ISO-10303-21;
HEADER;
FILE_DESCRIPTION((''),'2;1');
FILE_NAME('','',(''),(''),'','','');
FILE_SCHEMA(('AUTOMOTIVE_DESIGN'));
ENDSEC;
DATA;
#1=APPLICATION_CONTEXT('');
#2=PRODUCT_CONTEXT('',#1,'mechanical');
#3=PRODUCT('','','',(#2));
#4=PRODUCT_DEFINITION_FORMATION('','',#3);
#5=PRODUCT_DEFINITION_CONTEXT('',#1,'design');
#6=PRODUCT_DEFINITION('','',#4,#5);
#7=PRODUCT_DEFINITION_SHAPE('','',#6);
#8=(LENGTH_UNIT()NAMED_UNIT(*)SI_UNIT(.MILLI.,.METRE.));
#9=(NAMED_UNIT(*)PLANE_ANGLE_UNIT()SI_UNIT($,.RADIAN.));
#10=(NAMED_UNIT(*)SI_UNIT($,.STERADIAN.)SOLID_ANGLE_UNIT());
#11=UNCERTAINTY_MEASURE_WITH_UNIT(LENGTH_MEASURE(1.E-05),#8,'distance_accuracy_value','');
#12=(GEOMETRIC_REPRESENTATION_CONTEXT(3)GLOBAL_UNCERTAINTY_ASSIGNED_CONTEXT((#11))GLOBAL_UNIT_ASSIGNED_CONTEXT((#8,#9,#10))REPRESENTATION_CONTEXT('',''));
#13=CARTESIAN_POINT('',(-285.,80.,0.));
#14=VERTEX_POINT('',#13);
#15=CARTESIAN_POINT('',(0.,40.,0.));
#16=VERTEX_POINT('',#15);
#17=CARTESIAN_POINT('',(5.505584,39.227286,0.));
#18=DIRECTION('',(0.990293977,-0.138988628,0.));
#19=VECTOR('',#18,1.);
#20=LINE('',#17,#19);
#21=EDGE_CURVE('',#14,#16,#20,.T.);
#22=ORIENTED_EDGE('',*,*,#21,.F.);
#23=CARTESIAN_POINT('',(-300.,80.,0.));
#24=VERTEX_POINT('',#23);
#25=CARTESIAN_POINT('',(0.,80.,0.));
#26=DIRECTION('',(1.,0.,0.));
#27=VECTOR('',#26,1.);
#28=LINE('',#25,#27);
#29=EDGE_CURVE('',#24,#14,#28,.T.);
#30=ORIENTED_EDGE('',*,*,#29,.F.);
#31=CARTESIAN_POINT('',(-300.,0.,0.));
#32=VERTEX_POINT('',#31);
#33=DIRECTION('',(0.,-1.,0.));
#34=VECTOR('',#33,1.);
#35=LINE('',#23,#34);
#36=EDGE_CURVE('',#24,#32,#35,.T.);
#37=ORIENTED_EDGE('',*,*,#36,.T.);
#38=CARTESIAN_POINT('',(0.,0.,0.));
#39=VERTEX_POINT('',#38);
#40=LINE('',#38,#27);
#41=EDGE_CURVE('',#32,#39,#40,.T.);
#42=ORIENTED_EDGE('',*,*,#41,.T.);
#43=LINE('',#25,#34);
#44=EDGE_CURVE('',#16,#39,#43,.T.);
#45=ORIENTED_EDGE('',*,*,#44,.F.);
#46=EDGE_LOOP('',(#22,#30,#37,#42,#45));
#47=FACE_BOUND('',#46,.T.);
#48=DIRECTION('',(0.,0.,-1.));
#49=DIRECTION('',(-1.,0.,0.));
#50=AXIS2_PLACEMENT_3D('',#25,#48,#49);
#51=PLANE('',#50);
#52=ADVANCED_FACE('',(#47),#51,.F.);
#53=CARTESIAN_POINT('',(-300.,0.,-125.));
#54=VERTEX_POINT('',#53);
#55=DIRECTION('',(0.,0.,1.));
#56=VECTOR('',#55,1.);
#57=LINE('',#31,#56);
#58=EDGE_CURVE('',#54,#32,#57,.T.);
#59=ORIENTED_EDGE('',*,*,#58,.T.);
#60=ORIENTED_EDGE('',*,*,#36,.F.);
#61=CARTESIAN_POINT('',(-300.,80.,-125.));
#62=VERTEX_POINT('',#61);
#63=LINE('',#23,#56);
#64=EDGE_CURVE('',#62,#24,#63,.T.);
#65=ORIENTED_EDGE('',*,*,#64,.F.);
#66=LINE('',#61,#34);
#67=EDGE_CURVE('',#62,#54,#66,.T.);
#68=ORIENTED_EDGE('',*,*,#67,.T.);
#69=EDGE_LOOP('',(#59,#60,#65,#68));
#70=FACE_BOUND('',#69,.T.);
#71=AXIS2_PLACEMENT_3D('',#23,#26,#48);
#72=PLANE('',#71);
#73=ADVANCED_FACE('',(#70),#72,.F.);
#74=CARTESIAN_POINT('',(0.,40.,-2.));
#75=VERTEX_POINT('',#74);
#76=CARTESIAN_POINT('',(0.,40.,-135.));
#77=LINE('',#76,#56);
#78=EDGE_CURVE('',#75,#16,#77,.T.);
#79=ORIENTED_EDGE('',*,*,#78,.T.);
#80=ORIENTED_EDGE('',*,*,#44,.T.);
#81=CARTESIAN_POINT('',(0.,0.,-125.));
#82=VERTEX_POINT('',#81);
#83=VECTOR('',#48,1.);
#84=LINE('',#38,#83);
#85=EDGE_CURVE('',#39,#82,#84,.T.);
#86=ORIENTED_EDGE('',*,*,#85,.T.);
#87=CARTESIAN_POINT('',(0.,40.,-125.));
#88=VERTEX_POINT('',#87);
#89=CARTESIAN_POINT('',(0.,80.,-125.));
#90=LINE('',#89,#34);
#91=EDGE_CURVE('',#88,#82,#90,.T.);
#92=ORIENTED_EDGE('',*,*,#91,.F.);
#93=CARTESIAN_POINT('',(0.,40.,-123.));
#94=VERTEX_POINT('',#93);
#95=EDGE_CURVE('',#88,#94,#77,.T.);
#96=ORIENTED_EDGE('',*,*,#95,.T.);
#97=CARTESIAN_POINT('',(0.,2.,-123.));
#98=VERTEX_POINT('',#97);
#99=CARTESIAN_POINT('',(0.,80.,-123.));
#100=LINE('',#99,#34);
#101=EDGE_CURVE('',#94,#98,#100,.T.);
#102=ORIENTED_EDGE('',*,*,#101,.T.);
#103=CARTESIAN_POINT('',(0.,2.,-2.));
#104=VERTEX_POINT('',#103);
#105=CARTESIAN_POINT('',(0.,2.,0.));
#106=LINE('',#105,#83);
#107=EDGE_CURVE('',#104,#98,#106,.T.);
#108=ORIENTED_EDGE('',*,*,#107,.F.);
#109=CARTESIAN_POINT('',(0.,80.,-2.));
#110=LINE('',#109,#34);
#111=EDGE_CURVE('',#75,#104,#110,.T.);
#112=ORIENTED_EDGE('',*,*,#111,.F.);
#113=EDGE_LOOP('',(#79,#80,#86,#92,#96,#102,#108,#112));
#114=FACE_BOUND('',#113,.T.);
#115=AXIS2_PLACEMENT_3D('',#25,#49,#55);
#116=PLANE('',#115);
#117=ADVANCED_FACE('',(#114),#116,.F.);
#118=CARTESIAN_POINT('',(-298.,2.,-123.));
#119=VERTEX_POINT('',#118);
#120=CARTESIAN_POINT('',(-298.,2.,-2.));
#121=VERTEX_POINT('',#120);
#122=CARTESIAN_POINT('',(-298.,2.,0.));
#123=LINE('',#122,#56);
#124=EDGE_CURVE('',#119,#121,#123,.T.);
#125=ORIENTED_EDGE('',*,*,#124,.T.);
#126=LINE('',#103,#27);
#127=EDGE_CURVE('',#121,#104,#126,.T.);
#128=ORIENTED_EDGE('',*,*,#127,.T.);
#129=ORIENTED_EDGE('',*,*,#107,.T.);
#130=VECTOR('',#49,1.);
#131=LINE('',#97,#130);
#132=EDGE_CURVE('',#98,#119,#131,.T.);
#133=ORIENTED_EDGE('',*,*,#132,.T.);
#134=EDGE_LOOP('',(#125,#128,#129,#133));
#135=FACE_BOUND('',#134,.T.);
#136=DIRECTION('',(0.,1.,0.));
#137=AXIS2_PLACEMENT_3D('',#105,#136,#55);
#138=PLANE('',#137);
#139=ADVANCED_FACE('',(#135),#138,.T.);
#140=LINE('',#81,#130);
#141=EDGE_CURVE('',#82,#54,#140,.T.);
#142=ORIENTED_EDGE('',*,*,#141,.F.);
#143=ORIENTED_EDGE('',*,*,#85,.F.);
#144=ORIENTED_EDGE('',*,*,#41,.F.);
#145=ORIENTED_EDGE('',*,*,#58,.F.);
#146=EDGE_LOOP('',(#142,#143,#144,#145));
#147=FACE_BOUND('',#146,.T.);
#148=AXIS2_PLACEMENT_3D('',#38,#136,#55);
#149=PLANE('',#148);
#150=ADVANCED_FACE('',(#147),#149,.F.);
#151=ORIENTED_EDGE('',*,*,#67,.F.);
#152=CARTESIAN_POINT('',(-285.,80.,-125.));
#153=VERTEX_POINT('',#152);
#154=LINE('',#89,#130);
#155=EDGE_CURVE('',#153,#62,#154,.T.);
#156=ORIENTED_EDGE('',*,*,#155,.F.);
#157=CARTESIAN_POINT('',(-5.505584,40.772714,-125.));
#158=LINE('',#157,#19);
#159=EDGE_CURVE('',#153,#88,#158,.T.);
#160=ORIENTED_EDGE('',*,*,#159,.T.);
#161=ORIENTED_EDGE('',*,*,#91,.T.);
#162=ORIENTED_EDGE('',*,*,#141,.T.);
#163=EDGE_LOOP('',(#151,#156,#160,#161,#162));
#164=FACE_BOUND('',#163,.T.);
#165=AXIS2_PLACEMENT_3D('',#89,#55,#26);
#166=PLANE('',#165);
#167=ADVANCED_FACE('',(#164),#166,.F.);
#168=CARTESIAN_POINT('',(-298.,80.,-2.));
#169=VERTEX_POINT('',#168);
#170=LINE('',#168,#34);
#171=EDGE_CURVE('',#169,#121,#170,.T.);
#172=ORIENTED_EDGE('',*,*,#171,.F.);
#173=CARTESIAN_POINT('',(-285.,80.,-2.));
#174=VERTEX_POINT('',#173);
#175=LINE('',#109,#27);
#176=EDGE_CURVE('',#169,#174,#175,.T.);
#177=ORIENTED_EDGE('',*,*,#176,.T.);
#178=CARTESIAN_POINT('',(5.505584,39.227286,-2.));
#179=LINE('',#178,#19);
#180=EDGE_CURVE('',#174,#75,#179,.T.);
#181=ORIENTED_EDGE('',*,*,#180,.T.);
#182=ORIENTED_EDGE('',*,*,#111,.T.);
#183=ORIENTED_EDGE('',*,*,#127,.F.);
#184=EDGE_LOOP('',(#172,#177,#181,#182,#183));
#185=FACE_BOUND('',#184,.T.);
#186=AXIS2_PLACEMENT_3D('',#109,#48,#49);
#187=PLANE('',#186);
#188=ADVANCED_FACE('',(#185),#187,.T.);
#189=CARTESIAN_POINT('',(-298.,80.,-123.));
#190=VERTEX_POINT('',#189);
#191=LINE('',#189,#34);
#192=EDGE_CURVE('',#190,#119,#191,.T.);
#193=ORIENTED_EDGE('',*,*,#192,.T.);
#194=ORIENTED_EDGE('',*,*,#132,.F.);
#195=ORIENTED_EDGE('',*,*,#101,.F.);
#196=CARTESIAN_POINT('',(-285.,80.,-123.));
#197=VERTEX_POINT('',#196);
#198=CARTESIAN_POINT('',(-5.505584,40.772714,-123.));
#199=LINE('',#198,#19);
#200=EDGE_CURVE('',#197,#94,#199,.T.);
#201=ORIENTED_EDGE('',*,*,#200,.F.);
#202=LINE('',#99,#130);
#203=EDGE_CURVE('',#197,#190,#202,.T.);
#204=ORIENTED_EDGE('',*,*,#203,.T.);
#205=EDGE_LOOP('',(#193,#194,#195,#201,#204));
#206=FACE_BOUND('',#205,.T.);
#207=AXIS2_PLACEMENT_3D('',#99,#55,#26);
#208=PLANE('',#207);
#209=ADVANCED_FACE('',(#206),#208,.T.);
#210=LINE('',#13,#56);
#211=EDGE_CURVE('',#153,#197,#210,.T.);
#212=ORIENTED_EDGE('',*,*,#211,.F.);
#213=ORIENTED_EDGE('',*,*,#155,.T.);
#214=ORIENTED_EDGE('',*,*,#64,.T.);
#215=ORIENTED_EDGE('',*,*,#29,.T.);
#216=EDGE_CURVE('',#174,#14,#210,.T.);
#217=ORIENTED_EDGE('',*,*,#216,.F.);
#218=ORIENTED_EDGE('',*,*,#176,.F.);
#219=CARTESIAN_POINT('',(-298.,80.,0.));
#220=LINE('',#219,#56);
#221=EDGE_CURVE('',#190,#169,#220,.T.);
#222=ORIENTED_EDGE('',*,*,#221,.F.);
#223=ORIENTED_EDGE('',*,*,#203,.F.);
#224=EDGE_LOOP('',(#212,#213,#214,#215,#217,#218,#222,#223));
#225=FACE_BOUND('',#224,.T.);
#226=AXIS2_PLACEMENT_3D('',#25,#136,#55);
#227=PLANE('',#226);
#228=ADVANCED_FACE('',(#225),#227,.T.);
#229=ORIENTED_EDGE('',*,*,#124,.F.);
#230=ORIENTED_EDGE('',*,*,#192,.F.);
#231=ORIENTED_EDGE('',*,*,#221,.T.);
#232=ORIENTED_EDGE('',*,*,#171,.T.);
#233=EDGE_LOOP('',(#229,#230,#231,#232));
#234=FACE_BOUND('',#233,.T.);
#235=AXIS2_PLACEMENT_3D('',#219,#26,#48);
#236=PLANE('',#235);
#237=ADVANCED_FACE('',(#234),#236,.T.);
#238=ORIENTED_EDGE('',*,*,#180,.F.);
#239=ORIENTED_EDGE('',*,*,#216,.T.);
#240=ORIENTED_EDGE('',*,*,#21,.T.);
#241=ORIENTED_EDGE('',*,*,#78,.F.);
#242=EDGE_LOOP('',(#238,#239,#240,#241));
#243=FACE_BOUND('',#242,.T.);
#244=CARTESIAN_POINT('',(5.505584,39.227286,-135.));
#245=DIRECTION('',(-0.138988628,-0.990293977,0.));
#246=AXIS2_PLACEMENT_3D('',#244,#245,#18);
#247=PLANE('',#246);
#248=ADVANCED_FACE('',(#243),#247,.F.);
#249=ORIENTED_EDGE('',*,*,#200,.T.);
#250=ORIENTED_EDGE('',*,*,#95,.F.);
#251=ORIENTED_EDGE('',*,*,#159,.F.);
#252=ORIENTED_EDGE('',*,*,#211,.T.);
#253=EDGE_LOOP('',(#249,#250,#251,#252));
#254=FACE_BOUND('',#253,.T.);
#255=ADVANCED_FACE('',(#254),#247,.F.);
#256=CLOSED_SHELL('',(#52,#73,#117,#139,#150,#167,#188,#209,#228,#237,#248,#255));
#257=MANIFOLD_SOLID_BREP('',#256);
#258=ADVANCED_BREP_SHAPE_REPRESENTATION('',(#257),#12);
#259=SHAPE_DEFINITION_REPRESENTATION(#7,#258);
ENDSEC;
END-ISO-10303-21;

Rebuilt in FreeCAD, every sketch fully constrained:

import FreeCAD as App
import Part
import Sketcher

V = App.Vector


def faces_at(feature, points):
    """Names of the faces that lie closest to the given points."""
    faces = feature.Shape.Faces
    near = lambda p: min(range(len(faces)), key=lambda i: faces[i].distToShape(Part.Vertex(*p))[0])
    return sorted({f"Face{near(p) + 1}" for p in points})

doc = App.newDocument("Part")
body = doc.addObject("PartDesign::Body", "Body")

sketch1 = doc.addObject("Sketcher::SketchObject", "Sketch")
body.addObject(sketch1)
sketch1.AttachmentSupport = (doc.XZ_Plane, [""])
sketch1.MapMode = "FlatFace"
sketch1.addGeometry(Part.LineSegment(V(-300, -125, 0), V(-300, 0, 0)), False)
sketch1.addGeometry(Part.LineSegment(V(-300, 0, 0), V(0, 0, 0)), False)
sketch1.addGeometry(Part.LineSegment(V(0, 0, 0), V(0, -125, 0)), False)
sketch1.addGeometry(Part.LineSegment(V(0, -125, 0), V(-300, -125, 0)), False)
sketch1.addConstraint(Sketcher.Constraint("Coincident", 0, 2, 1, 1))
sketch1.addConstraint(Sketcher.Constraint("Coincident", 1, 2, 2, 1))
sketch1.addConstraint(Sketcher.Constraint("Coincident", 2, 2, 3, 1))
sketch1.addConstraint(Sketcher.Constraint("Coincident", 3, 2, 0, 1))
sketch1.addConstraint(Sketcher.Constraint("Vertical", 0))
sketch1.addConstraint(Sketcher.Constraint("Horizontal", 1))
sketch1.addConstraint(Sketcher.Constraint("Vertical", 2))
sketch1.addConstraint(Sketcher.Constraint("Horizontal", 3))
sketch1.addConstraint(Sketcher.Constraint("Coincident", 1, 2, -1, 1))
sketch1.addConstraint(Sketcher.Constraint("DistanceX", 1, 1, 1, 2, 300.0))
sketch1.addConstraint(Sketcher.Constraint("DistanceY", 0, 1, 0, 2, 125.0))
pad1 = doc.addObject("PartDesign::Pad", "Pad")
body.addObject(pad1)
pad1.Profile = sketch1
pad1.Length = 80
pad1.Reversed = True

sketch2 = doc.addObject("Sketcher::SketchObject", "Sketch001")
body.addObject(sketch2)
sketch2.AttachmentSupport = (doc.XY_Plane, [""])
sketch2.MapMode = "FlatFace"
sketch2.addGeometry(Part.LineSegment(V(0, 80, 0), V(-285, 80, 0)), False)
sketch2.addGeometry(Part.LineSegment(V(-285, 80, 0), V(0, 40, 0)), False)
sketch2.addGeometry(Part.LineSegment(V(0, 40, 0), V(0, 80, 0)), False)
sketch2.addConstraint(Sketcher.Constraint("Coincident", 0, 2, 1, 1))
sketch2.addConstraint(Sketcher.Constraint("Coincident", 1, 2, 2, 1))
sketch2.addConstraint(Sketcher.Constraint("Coincident", 2, 2, 0, 1))
sketch2.addConstraint(Sketcher.Constraint("Horizontal", 0))
sketch2.addConstraint(Sketcher.Constraint("Vertical", 2))
sketch2.addConstraint(Sketcher.Constraint("PointOnObject", 1, 2, -2))
sketch2.addConstraint(Sketcher.Constraint("DistanceX", 0, 2, 0, 1, 285.0))
sketch2.addConstraint(Sketcher.Constraint("DistanceY", 2, 1, 2, 2, 40.0))
sketch2.addConstraint(Sketcher.Constraint("DistanceY", -1, 1, 0, 2, 80.0))
pocket1 = doc.addObject("PartDesign::Pocket", "Pocket")
body.addObject(pocket1)
pocket1.Profile = sketch2
pocket1.Length = 135
doc.recompute()

thickness = doc.addObject("PartDesign::Thickness", "Thickness")
body.addObject(thickness)
thickness.Base = (pocket1, faces_at(pocket1, [(-292.5, 80, -62.5), (-142.5, 60, -62.5), (0, 20, -62.5)]))
thickness.Value = 2
thickness.Reversed = True
thickness.Join = "Intersection"

doc.recompute()
